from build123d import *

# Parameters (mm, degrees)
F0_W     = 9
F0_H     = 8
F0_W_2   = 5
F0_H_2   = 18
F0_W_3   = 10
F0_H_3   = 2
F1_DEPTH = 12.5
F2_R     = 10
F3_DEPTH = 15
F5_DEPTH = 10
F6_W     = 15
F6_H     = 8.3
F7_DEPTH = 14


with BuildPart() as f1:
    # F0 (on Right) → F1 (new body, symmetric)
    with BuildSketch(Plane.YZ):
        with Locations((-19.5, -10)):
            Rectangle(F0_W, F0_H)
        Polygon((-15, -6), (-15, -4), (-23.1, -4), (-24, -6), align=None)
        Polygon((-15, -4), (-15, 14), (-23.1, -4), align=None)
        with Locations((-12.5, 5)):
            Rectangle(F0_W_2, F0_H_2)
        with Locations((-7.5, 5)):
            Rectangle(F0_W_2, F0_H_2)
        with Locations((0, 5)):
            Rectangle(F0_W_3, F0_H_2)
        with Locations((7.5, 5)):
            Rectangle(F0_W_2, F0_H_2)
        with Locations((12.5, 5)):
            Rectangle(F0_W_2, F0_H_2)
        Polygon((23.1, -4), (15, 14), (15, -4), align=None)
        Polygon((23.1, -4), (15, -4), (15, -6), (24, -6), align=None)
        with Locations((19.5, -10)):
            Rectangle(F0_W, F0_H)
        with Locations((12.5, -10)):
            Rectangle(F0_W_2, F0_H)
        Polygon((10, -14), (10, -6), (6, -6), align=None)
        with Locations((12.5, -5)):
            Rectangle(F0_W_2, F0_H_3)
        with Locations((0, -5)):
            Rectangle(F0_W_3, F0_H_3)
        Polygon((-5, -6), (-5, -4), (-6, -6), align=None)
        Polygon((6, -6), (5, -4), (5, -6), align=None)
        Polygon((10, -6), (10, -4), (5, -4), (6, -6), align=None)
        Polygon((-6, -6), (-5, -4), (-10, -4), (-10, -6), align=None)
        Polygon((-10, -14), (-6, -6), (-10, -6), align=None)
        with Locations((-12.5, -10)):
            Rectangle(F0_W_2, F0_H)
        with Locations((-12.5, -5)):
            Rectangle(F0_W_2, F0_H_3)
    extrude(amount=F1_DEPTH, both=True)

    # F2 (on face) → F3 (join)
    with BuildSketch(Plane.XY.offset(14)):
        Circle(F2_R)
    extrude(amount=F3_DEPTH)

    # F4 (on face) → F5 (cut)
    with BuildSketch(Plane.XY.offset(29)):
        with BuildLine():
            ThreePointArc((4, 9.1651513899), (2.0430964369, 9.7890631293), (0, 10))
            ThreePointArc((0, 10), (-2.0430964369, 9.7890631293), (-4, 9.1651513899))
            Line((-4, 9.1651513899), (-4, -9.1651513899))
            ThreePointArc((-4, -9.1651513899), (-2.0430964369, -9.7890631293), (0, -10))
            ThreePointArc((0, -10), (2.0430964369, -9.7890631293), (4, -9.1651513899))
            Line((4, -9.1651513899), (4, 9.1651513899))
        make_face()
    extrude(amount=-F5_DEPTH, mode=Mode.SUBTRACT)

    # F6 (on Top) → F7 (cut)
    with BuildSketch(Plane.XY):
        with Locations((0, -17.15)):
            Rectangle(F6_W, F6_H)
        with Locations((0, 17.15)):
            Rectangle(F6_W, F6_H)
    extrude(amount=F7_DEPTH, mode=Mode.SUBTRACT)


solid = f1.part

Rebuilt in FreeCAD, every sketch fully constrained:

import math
import FreeCAD as App
import Part
import Sketcher
Q = App.Units.Quantity

doc = App.newDocument("Part")
body = doc.addObject("PartDesign::Body", "Body")

# Sketch on YZ plane
sketch1 = body.newObject("Sketcher::SketchObject", "Sketch")
sketch1.AttachmentSupport = (doc.getObject("YZ_Plane"), [""])
sketch1.MapMode = "FlatFace"
sketch1.addGeometry(Part.LineSegment(App.Vector(6, -6, 0), App.Vector(10, -14, 0)), False)
sketch1.addGeometry(Part.LineSegment(App.Vector(10, -14, 0), App.Vector(24, -14, 0)), False)
sketch1.addGeometry(Part.LineSegment(App.Vector(24, -14, 0), App.Vector(24, -6, 0)), False)
sketch1.addGeometry(Part.LineSegment(App.Vector(24, -6, 0), App.Vector(15, 14, 0)), False)
sketch1.addGeometry(Part.LineSegment(App.Vector(15, 14, 0), App.Vector(-15, 14, 0)), False)
sketch1.addGeometry(Part.LineSegment(App.Vector(-15, 14, 0), App.Vector(-24, -6, 0)), False)
sketch1.addGeometry(Part.LineSegment(App.Vector(-24, -6, 0), App.Vector(-24, -14, 0)), False)
sketch1.addGeometry(Part.LineSegment(App.Vector(-24, -14, 0), App.Vector(-10, -14, 0)), False)
sketch1.addGeometry(Part.LineSegment(App.Vector(-10, -14, 0), App.Vector(-6, -6, 0)), False)
sketch1.addGeometry(Part.LineSegment(App.Vector(-6, -6, 0), App.Vector(6, -6, 0)), False)
sketch1.addConstraint(Sketcher.Constraint("Coincident", 0, 2, 1, 1))
sketch1.addConstraint(Sketcher.Constraint("Coincident", 1, 2, 2, 1))
sketch1.addConstraint(Sketcher.Constraint("Coincident", 2, 2, 3, 1))
sketch1.addConstraint(Sketcher.Constraint("Coincident", 3, 2, 4, 1))
sketch1.addConstraint(Sketcher.Constraint("Coincident", 4, 2, 5, 1))
sketch1.addConstraint(Sketcher.Constraint("Coincident", 5, 2, 6, 1))
sketch1.addConstraint(Sketcher.Constraint("Coincident", 6, 2, 7, 1))
sketch1.addConstraint(Sketcher.Constraint("Coincident", 7, 2, 8, 1))
sketch1.addConstraint(Sketcher.Constraint("Coincident", 8, 2, 9, 1))
sketch1.addConstraint(Sketcher.Constraint("Coincident", 9, 2, 0, 1))
sketch1.addConstraint(Sketcher.Constraint("Horizontal", 1))
sketch1.addConstraint(Sketcher.Constraint("Vertical", 2))
sketch1.addConstraint(Sketcher.Constraint("Horizontal", 4))
sketch1.addConstraint(Sketcher.Constraint("Vertical", 6))
sketch1.addConstraint(Sketcher.Constraint("Horizontal", 7))
sketch1.addConstraint(Sketcher.Constraint("Horizontal", 9))
sketch1.addConstraint(Sketcher.Constraint("Symmetric", 2, 2, 5, 2, -2))
sketch1.addConstraint(Sketcher.Constraint("Symmetric", 0, 2, 7, 2, -2))
sketch1.addConstraint(Sketcher.Constraint("Horizontal", 5, 2, 8, 2))
sketch1.addConstraint(Sketcher.Constraint("Equal", 3, 5))
sketch1.addConstraint(Sketcher.Constraint("Equal", 0, 8))
sketch1.addConstraint(Sketcher.Constraint("DistanceX", 1, 1, 1, 2, Q("14 mm")))
sketch1.addConstraint(Sketcher.Constraint("DistanceX", 4, 2, 4, 1, Q("30 mm")))
sketch1.addConstraint(Sketcher.Constraint("DistanceX", 9, 1, 9, 2, Q("12 mm")))
sketch1.addConstraint(Sketcher.Constraint("DistanceY", 2, 1, 2, 2, Q("8 mm")))
sketch1.addConstraint(Sketcher.Constraint("DistanceX", -1, 1, 0, 2, Q("10 mm")))
sketch1.addConstraint(Sketcher.Constraint("DistanceY", 0, 2, -1, 1, Q("14 mm")))
sketch1.addConstraint(Sketcher.Constraint("DistanceY", -1, 1, 3, 2, Q("14 mm")))
pad1 = body.newObject("PartDesign::Pad", "Pad")
pad1.Profile = sketch1
pad1.Length = 25
pad1.Midplane = True

# Sketch on XY plane
sketch2 = body.newObject("Sketcher::SketchObject", "Sketch001")
sketch2.AttachmentSupport = (doc.getObject("XY_Plane"), [""])
sketch2.MapMode = "FlatFace"
sketch2.AttachmentOffset = App.Placement(App.Vector(0, 0, 14), App.Rotation())
sketch2.addGeometry(Part.Circle(App.Vector(0, 0, 0), App.Vector(0, 0, 1), 10), False)
sketch2.addConstraint(Sketcher.Constraint("Coincident", 0, 3, -1, 1))
sketch2.addConstraint(Sketcher.Constraint("Diameter", 0, Q("20 mm")))
pad2 = body.newObject("PartDesign::Pad", "Pad001")
pad2.Profile = sketch2
pad2.Length = 15

# Sketch on XY plane
sketch3 = body.newObject("Sketcher::SketchObject", "Sketch002")
sketch3.AttachmentSupport = (doc.getObject("XY_Plane"), [""])
sketch3.MapMode = "FlatFace"
sketch3.AttachmentOffset = App.Placement(App.Vector(0, 0, 29), App.Rotation())
sketch3.addGeometry(Part.ArcOfCircle(Part.Circle(App.Vector(0, 0, 0), App.Vector(0, 0, 1), 10), math.radians(66), math.radians(90)), False)
sketch3.addGeometry(Part.ArcOfCircle(Part.Circle(App.Vector(0, 0, 0), App.Vector(0, 0, 1), 10), math.radians(90), math.radians(114)), False)
sketch3.addGeometry(Part.LineSegment(App.Vector(-4, 9.2, 0), App.Vector(-4, -9.2, 0)), False)
sketch3.addGeometry(Part.ArcOfCircle(Part.Circle(App.Vector(0, 0, 0), App.Vector(0, 0, 1), 10), math.radians(-114), math.radians(-90)), False)
sketch3.addGeometry(Part.ArcOfCircle(Part.Circle(App.Vector(0, 0, 0), App.Vector(0, 0, 1), 10), math.radians(-90), math.radians(-66)), False)
sketch3.addGeometry(Part.LineSegment(App.Vector(4, -9.2, 0), App.Vector(4, 9.2, 0)), False)
sketch3.addConstraint(Sketcher.Constraint("Tangent", 0, 2, 1, 1))
sketch3.addConstraint(Sketcher.Constraint("Coincident", 1, 2, 2, 1))
sketch3.addConstraint(Sketcher.Constraint("Coincident", 2, 2, 3, 1))
sketch3.addConstraint(Sketcher.Constraint("Tangent", 3, 2, 4, 1))
sketch3.addConstraint(Sketcher.Constraint("Coincident", 4, 2, 5, 1))
sketch3.addConstraint(Sketcher.Constraint("Coincident", 5, 2, 0, 1))
sketch3.addConstraint(Sketcher.Constraint("Vertical", 2))
sketch3.addConstraint(Sketcher.Constraint("Vertical", 5))
sketch3.addConstraint(Sketcher.Constraint("Coincident", 0, 3, -1, 1))
sketch3.addConstraint(Sketcher.Constraint("Coincident", 3, 3, -1, 1))
sketch3.addConstraint(Sketcher.Constraint("Equal", 0, 1))
sketch3.addConstraint(Sketcher.Constraint("Equal", 1, 3))
sketch3.addConstraint(Sketcher.Constraint("Equal", 3, 4))
sketch3.addConstraint(Sketcher.Constraint("PointOnObject", 0, 2, -2))
sketch3.addConstraint(Sketcher.Constraint("PointOnObject", 3, 2, -2))
sketch3.addConstraint(Sketcher.Constraint("Horizontal", 2, 2, 4, 2))
sketch3.addConstraint(Sketcher.Constraint("Radius", 0, Q("10 mm")))
sketch3.addConstraint(Sketcher.Constraint("DistanceX", 1, 2, -1, 1, Q("4 mm")))
pocket1 = body.newObject("PartDesign::Pocket", "Pocket")
pocket1.Profile = sketch3
pocket1.Length = 10

# Sketch on XY plane
sketch4 = body.newObject("Sketcher::SketchObject", "Sketch003")
sketch4.AttachmentSupport = (doc.getObject("XY_Plane"), [""])
sketch4.MapMode = "FlatFace"
sketch4.addGeometry(Part.LineSegment(App.Vector(-8, -13, 0), App.Vector(-8, -21, 0)), False)
sketch4.addGeometry(Part.LineSegment(App.Vector(-8, -21, 0), App.Vector(8, -21, 0)), False)
sketch4.addGeometry(Part.LineSegment(App.Vector(8, -21, 0), App.Vector(8, -13, 0)), False)
sketch4.addGeometry(Part.LineSegment(App.Vector(8, -13, 0), App.Vector(-8, -13, 0)), False)
sketch4.addGeometry(Part.LineSegment(App.Vector(-8, 21, 0), App.Vector(-8, 13, 0)), False)
sketch4.addGeometry(Part.LineSegment(App.Vector(-8, 13, 0), App.Vector(8, 13, 0)), False)
sketch4.addGeometry(Part.LineSegment(App.Vector(8, 13, 0), App.Vector(8, 21, 0)), False)
sketch4.addGeometry(Part.LineSegment(App.Vector(8, 21, 0), App.Vector(-8, 21, 0)), False)
sketch4.addConstraint(Sketcher.Constraint("Coincident", 0, 2, 1, 1))
sketch4.addConstraint(Sketcher.Constraint("Coincident", 1, 2, 2, 1))
sketch4.addConstraint(Sketcher.Constraint("Coincident", 2, 2, 3, 1))
sketch4.addConstraint(Sketcher.Constraint("Coincident", 3, 2, 0, 1))
sketch4.addConstraint(Sketcher.Constraint("Coincident", 4, 2, 5, 1))
sketch4.addConstraint(Sketcher.Constraint("Coincident", 5, 2, 6, 1))
sketch4.addConstraint(Sketcher.Constraint("Coincident", 6, 2, 7, 1))
sketch4.addConstraint(Sketcher.Constraint("Coincident", 7, 2, 4, 1))
sketch4.addConstraint(Sketcher.Constraint("Vertical", 0))
sketch4.addConstraint(Sketcher.Constraint("Horizontal", 1))
sketch4.addConstraint(Sketcher.Constraint("Vertical", 2))
sketch4.addConstraint(Sketcher.Constraint("Horizontal", 3))
sketch4.addConstraint(Sketcher.Constraint("Vertical", 4))
sketch4.addConstraint(Sketcher.Constraint("Horizontal", 5))
sketch4.addConstraint(Sketcher.Constraint("Vertical", 6))
sketch4.addConstraint(Sketcher.Constraint("Horizontal", 7))
sketch4.addConstraint(Sketcher.Constraint("Symmetric", 2, 2, 4, 2, -1, 1))
sketch4.addConstraint(Sketcher.Constraint("Symmetric", 0, 2, 6, 2, -1, 1))
sketch4.addConstraint(Sketcher.Constraint("Vertical", 3, 2, 4, 2))
sketch4.addConstraint(Sketcher.Constraint("DistanceX", 1, 1, 1, 2, Q("15 mm")))
sketch4.addConstraint(Sketcher.Constraint("DistanceY", 0, 2, 0, 1, Q("8.3 mm")))
sketch4.addConstraint(Sketcher.Constraint("DistanceY", 2, 2, -1, 1, Q("13 mm")))
pocket2 = body.newObject("PartDesign::Pocket", "Pocket001")
pocket2.Profile = sketch4
pocket2.Length = 14
pocket2.Reversed = True

doc.recompute()
